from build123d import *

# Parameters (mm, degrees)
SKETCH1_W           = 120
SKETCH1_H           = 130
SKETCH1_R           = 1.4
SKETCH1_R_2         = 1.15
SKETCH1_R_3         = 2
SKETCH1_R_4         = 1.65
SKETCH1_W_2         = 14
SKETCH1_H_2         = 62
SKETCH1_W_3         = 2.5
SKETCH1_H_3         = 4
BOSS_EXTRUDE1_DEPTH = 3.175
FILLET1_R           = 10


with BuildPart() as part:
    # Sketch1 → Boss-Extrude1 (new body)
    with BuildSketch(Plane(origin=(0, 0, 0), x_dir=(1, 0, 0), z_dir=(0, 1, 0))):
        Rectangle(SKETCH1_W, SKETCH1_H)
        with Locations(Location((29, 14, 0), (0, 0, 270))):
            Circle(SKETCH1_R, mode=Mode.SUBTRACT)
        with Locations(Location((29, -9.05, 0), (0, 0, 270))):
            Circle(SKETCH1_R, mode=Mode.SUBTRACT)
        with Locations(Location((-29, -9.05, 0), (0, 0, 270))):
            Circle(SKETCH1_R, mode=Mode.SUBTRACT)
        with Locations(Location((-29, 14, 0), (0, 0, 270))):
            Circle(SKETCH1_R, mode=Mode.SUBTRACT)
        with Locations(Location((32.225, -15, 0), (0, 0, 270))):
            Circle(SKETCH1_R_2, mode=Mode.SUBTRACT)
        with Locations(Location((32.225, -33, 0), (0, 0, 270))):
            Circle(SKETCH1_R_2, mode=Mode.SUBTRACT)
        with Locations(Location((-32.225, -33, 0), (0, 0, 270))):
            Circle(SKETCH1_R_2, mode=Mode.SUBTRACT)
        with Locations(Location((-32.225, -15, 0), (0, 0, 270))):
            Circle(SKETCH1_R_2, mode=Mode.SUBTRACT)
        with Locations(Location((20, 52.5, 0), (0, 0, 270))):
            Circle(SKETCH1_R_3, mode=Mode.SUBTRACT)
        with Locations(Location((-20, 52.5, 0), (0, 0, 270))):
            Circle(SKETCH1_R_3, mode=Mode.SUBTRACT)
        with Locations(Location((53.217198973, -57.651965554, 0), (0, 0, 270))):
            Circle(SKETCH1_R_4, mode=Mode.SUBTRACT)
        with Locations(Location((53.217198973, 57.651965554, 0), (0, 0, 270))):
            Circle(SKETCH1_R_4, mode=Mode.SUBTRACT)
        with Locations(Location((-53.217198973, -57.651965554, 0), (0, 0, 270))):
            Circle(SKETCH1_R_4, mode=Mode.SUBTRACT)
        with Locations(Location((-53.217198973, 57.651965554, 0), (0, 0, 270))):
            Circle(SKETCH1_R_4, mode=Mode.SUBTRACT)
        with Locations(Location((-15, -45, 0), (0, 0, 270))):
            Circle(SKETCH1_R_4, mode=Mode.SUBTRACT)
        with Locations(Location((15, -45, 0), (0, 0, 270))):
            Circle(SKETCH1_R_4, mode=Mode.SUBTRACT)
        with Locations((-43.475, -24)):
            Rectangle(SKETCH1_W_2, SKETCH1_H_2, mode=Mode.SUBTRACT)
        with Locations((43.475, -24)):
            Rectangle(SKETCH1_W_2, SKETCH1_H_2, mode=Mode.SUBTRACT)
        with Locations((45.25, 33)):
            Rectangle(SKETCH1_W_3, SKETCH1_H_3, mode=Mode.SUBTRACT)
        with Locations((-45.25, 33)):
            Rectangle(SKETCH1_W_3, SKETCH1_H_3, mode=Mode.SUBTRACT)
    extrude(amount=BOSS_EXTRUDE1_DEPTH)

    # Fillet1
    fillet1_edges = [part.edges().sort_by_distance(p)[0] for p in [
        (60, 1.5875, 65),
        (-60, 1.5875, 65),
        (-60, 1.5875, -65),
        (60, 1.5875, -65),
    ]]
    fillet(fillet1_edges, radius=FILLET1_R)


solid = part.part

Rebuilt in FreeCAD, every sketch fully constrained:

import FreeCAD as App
import Part
import Sketcher
Q = App.Units.Quantity


def edges_at(feature, points):
    """Names of the edges that pass closest to the given points."""
    edges = feature.Shape.Edges
    near = lambda p: min(range(len(edges)), key=lambda i: edges[i].distToShape(Part.Vertex(*p))[0])
    return sorted({f"Edge{near(p) + 1}" for p in points})


def add_polygon(sketch, points):
    """Adds a closed chain of lines whose ends are joined by coincident constraints."""
    first, n = sketch.GeometryCount, len(points)
    for a, b in zip(points, points[1:] + points[:1]):
        sketch.addGeometry(Part.LineSegment(App.Vector(*a, 0), App.Vector(*b, 0)), False)
    for i in range(n):
        sketch.addConstraint(Sketcher.Constraint("Coincident", first + i, 2, first + (i + 1) % n, 1))

doc = App.newDocument("Part")
body = doc.addObject("PartDesign::Body", "Body")

# Sketch on XZ plane
sketch1 = doc.addObject("Sketcher::SketchObject", "Sketch")
body.addObject(sketch1)
sketch1.AttachmentSupport = (doc.XZ_Plane, [""])
sketch1.MapMode = "FlatFace"
add_polygon(sketch1, [(-60, -65), (-60, 65), (60, 65), (60, -65)])  # lines 0-3
sketch1.addGeometry(Part.Circle(App.Vector(-53.2, 57.7, 0), App.Vector(0, 0, 1), 1.6), False)  # 4
sketch1.addGeometry(Part.Circle(App.Vector(-32.2, 33, 0), App.Vector(0, 0, 1), 1.1), False)  # 5
sketch1.addGeometry(Part.Circle(App.Vector(-15, 45, 0), App.Vector(0, 0, 1), 1.6), False)  # 6
add_polygon(sketch1, [(-36.5, 55), (-50.5, 55), (-50.5, -7), (-36.5, -7)])  # lines 7-10
sketch1.addGeometry(Part.Circle(App.Vector(-32.2, 15, 0), App.Vector(0, 0, 1), 1.1), False)  # 11
sketch1.addGeometry(Part.Circle(App.Vector(-29, 9.1, 0), App.Vector(0, 0, 1), 1.4), False)  # 12
sketch1.addGeometry(Part.Circle(App.Vector(15, 45, 0), App.Vector(0, 0, 1), 1.6), False)  # 13
sketch1.addGeometry(Part.Circle(App.Vector(53.2, 57.7, 0), App.Vector(0, 0, 1), 1.6), False)  # 14
sketch1.addGeometry(Part.Circle(App.Vector(32.2, 33, 0), App.Vector(0, 0, 1), 1.1), False)  # 15
sketch1.addGeometry(Part.Circle(App.Vector(32.2, 15, 0), App.Vector(0, 0, 1), 1.1), False)  # 16
add_polygon(sketch1, [(50.5, 55), (36.5, 55), (36.5, -7), (50.5, -7)])  # lines 17-20
sketch1.addGeometry(Part.Circle(App.Vector(29, 9.1, 0), App.Vector(0, 0, 1), 1.4), False)  # 21
sketch1.addGeometry(Part.Circle(App.Vector(-29, -14, 0), App.Vector(0, 0, 1), 1.4), False)  # 22
add_polygon(sketch1, [(-44, -31), (-46.5, -31), (-46.5, -35), (-44, -35)])  # lines 23-26
sketch1.addGeometry(Part.Circle(App.Vector(-53.2, -57.7, 0), App.Vector(0, 0, 1), 1.6), False)  # 27
sketch1.addGeometry(Part.Circle(App.Vector(-20, -52.5, 0), App.Vector(0, 0, 1), 2), False)  # 28
sketch1.addGeometry(Part.Circle(App.Vector(29, -14, 0), App.Vector(0, 0, 1), 1.4), False)  # 29
sketch1.addGeometry(Part.Circle(App.Vector(20, -52.5, 0), App.Vector(0, 0, 1), 2), False)  # 30
add_polygon(sketch1, [(46.5, -31), (44, -31), (44, -35), (46.5, -35)])  # lines 31-34
sketch1.addGeometry(Part.Circle(App.Vector(53.2, -57.7, 0), App.Vector(0, 0, 1), 1.6), False)  # 35
sketch1.addConstraint([
    Sketcher.Constraint("Vertical", 0),
    Sketcher.Constraint("Horizontal", 1),
    Sketcher.Constraint("Vertical", 2),
    Sketcher.Constraint("Horizontal", 3),
    Sketcher.Constraint("Horizontal", 7),
    Sketcher.Constraint("Vertical", 8),
    Sketcher.Constraint("Horizontal", 9),
    Sketcher.Constraint("Vertical", 10),
    Sketcher.Constraint("Horizontal", 17),
    Sketcher.Constraint("Vertical", 18),
    Sketcher.Constraint("Horizontal", 19),
    Sketcher.Constraint("Vertical", 20),
    Sketcher.Constraint("Horizontal", 23),
    Sketcher.Constraint("Vertical", 24),
    Sketcher.Constraint("Horizontal", 25),
    Sketcher.Constraint("Vertical", 26),
    Sketcher.Constraint("Horizontal", 31),
    Sketcher.Constraint("Vertical", 32),
    Sketcher.Constraint("Horizontal", 33),
    Sketcher.Constraint("Vertical", 34),
    Sketcher.Constraint("Equal", 4, 6),
    Sketcher.Constraint("Equal", 5, 11),
    Sketcher.Constraint("Equal", 6, 13),
    Sketcher.Constraint("Equal", 13, 14),
    Sketcher.Constraint("Equal", 11, 15),
    Sketcher.Constraint("Equal", 15, 16),
    Sketcher.Constraint("Equal", 12, 21),
    Sketcher.Constraint("Equal", 21, 22),
    Sketcher.Constraint("Equal", 14, 27),
    Sketcher.Constraint("Equal", 22, 29),
    Sketcher.Constraint("Equal", 28, 30),
    Sketcher.Constraint("Equal", 27, 35),
    Sketcher.Constraint("Symmetric", 14, 3, 27, 3, -1, 1),
    Sketcher.Constraint("Symmetric", 4, 3, 35, 3, -1, 1),
    Sketcher.Constraint("Symmetric", 0, 2, 2, 2, -1, 1),
    Sketcher.Constraint("Symmetric", 6, 3, 13, 3, -2),
    Sketcher.Constraint("Symmetric", 4, 3, 14, 3, -2),
    Sketcher.Constraint("Symmetric", 5, 3, 15, 3, -2),
    Sketcher.Constraint("Symmetric", 11, 3, 16, 3, -2),
    Sketcher.Constraint("Symmetric", 12, 3, 21, 3, -2),
    Sketcher.Constraint("Symmetric", 22, 3, 29, 3, -2),
    Sketcher.Constraint("Symmetric", 28, 3, 30, 3, -2),
    Sketcher.Constraint("Symmetric", 10, 2, 17, 2, -2),
    Sketcher.Constraint("Symmetric", 8, 2, 19, 2, -2),
    Sketcher.Constraint("Symmetric", 26, 2, 31, 2, -2),
    Sketcher.Constraint("Symmetric", 24, 2, 33, 2, -2),
    Sketcher.Constraint("Vertical", 5, 3, 11, 3),
    Sketcher.Constraint("Vertical", 12, 3, 22, 3),
    Sketcher.Constraint("Diameter", 28, Q("4 mm")),
    Sketcher.Constraint("Diameter", 4, Q("3.3 mm")),
    Sketcher.Constraint("Diameter", 5, Q("2.3 mm")),
    Sketcher.Constraint("Diameter", 12, Q("2.8 mm")),
    Sketcher.Constraint("DistanceX", 1, 1, 1, 2, Q("120 mm")),
    Sketcher.Constraint("DistanceX", 7, 2, 7, 1, Q("14 mm")),
    Sketcher.Constraint("DistanceY", 0, 1, 0, 2, Q("130 mm")),
    Sketcher.Constraint("DistanceY", 8, 2, 8, 1, Q("62 mm")),
    Sketcher.Constraint("DistanceY", 24, 2, 24, 1, Q("4 mm")),
    Sketcher.Constraint("DistanceX", 23, 2, 23, 1, Q("2.5 mm")),
    Sketcher.Constraint("DistanceY", -1, 1, 5, 3, Q("33 mm")),
    Sketcher.Constraint("DistanceX", 6, 3, -1, 1, Q("15 mm")),
    Sketcher.Constraint("DistanceY", -1, 1, 6, 3, Q("45 mm")),
    Sketcher.Constraint("DistanceY", -1, 1, 11, 3, Q("15 mm")),
    Sketcher.Constraint("DistanceX", 12, 3, -1, 1, Q("29 mm")),
    Sketcher.Constraint("DistanceY", 22, 3, -1, 1, Q("14 mm")),
    Sketcher.Constraint("DistanceX", 28, 3, -1, 1, Q("20 mm")),
    Sketcher.Constraint("DistanceY", -1, 1, 7, 2, Q("55 mm")),
    Sketcher.Constraint("DistanceY", 23, 2, -1, 1, Q("31 mm")),
    Sketcher.Constraint("DistanceX", 25, 2, -1, 1, Q("44 mm")),
    Sketcher.Constraint("DistanceY", 28, 3, -1, 1, Q("52.5 mm")),
    Sketcher.Constraint("DistanceY", -1, 1, 12, 3, Q("9.05 mm")),
    Sketcher.Constraint("DistanceX", 5, 3, 15, 3, Q("64.45 mm")),
    Sketcher.Constraint("DistanceX", 7, 2, 5, 3, Q("18.25 mm")),
    Sketcher.Constraint("DistanceX", 4, 3, -1, 1, Q("53.217199 mm")),
    Sketcher.Constraint("DistanceY", -1, 1, 4, 3, Q("57.651966 mm")),
])
pad1 = doc.addObject("PartDesign::Pad", "Pad")
body.addObject(pad1)
pad1.Profile = sketch1
pad1.Length = 3.175
pad1.Reversed = True
doc.recompute()

fillet = doc.addObject("PartDesign::Fillet", "Fillet")
body.addObject(fillet)
fillet.Base = (pad1, edges_at(pad1, [
    (60, 1.587, 65),
    (-60, 1.587, 65),
    (-60, 1.587, -65),
    (60, 1.587, -65),
]))
fillet.Radius = 10

doc.recompute()
